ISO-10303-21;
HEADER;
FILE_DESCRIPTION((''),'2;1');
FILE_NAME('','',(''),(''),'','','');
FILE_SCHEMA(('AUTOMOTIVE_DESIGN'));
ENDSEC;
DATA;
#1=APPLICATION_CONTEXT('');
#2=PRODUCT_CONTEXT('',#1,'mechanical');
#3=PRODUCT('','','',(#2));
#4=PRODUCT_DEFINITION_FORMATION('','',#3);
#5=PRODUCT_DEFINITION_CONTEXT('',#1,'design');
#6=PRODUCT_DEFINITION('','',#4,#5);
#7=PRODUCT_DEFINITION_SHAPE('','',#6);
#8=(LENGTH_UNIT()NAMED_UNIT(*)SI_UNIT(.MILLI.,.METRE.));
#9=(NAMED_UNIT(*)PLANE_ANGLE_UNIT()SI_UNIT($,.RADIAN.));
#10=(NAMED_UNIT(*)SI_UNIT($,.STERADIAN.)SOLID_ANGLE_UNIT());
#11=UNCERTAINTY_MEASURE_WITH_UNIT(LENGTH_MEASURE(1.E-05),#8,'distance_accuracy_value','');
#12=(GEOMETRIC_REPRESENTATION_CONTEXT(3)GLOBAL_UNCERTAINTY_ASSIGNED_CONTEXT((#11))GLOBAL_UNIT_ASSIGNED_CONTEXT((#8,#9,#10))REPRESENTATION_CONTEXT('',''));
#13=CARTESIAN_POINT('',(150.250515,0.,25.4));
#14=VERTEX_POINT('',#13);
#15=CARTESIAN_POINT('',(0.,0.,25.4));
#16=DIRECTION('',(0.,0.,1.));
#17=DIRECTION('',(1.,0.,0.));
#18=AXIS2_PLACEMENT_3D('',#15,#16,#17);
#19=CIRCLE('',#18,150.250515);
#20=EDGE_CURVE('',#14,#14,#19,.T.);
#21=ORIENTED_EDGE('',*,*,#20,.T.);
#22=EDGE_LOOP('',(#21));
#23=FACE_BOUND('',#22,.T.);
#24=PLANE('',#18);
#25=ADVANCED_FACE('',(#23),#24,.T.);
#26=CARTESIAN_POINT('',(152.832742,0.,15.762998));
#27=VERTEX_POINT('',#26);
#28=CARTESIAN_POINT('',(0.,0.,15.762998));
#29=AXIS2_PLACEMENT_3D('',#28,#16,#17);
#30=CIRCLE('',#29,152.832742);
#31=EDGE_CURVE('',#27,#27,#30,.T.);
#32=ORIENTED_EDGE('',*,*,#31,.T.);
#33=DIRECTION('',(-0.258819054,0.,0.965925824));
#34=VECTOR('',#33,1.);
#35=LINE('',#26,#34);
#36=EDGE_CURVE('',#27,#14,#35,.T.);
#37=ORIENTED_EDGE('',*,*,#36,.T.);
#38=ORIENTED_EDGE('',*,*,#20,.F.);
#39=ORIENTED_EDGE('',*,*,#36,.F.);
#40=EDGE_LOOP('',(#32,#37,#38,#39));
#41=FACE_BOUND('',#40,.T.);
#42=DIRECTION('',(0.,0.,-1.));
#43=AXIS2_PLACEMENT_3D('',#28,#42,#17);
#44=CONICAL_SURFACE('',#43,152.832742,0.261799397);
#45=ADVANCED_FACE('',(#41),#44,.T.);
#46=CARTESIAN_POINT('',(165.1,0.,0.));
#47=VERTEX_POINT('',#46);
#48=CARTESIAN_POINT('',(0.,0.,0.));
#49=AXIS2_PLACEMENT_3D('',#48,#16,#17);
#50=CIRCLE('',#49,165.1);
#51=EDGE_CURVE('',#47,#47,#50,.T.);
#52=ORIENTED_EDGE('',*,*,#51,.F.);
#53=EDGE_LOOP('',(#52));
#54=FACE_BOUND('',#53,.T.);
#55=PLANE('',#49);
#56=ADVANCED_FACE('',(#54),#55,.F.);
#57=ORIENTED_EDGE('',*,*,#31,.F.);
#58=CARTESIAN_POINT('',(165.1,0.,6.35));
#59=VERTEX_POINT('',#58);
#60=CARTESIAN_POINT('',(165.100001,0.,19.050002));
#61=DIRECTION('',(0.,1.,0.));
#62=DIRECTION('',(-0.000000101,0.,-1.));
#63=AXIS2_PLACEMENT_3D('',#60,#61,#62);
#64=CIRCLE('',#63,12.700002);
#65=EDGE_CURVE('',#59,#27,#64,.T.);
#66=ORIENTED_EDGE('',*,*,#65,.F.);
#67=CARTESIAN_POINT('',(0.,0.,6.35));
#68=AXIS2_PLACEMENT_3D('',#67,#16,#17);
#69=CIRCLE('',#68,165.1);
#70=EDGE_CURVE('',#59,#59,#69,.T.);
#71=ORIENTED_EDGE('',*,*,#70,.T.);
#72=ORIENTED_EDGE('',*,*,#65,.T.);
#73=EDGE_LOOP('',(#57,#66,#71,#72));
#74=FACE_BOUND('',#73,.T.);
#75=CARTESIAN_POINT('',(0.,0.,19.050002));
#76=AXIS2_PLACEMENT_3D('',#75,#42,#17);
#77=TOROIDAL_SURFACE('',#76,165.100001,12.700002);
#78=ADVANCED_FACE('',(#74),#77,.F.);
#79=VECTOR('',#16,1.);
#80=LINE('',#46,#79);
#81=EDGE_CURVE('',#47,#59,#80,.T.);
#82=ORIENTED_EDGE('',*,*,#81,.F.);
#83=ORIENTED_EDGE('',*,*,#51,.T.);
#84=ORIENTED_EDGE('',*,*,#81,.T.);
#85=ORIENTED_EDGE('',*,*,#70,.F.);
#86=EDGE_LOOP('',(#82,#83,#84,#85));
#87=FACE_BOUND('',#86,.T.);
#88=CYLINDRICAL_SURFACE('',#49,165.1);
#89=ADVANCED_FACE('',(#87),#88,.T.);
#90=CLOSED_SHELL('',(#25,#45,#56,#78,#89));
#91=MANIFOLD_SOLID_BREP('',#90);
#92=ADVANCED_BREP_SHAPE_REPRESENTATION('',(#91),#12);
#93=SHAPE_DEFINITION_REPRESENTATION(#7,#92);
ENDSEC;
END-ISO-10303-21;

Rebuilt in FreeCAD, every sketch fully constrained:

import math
import FreeCAD as App
import Part
import Sketcher
Q = App.Units.Quantity

doc = App.newDocument("Part")
body = doc.addObject("PartDesign::Body", "Body")

sketch1 = body.newObject("Sketcher::SketchObject", "Sketch")
sketch1.AttachmentSupport = (doc.getObject("XZ_Plane"), [""])
sketch1.MapMode = "FlatFace"
sketch1.addGeometry([
    Part.LineSegment(App.Vector(0, 25, 0), App.Vector(0, 0, 0)),
    Part.LineSegment(App.Vector(0, 0, 0), App.Vector(165, 0, 0)),
    Part.LineSegment(App.Vector(165, 0, 0), App.Vector(165, 6, 0)),
    Part.ArcOfCircle(Part.Circle(App.Vector(165, 19, 0), App.Vector(0, 0, 1), 13), math.radians(-165), math.radians(-90)),
    Part.LineSegment(App.Vector(153, 16, 0), App.Vector(150, 25, 0)),
    Part.LineSegment(App.Vector(150, 25, 0), App.Vector(0, 25, 0)),
], False)
sketch1.addConstraint([
    Sketcher.Constraint("Coincident", 0, 2, 1, 1),
    Sketcher.Constraint("Coincident", 1, 2, 2, 1),
    Sketcher.Constraint("Coincident", 2, 2, 3, 2),
    Sketcher.Constraint("Tangent", 3, 1, 4, 1),
    Sketcher.Constraint("Coincident", 4, 2, 5, 1),
    Sketcher.Constraint("Coincident", 5, 2, 0, 1),
    Sketcher.Constraint("Vertical", 0),
    Sketcher.Constraint("Horizontal", 1),
    Sketcher.Constraint("Vertical", 2),
    Sketcher.Constraint("Horizontal", 5),
    Sketcher.Constraint("Coincident", 0, 2, -1, 1),
    Sketcher.Constraint("Vertical", 3, 3, 1, 2),
    Sketcher.Constraint("Radius", 3, Q("0.5000001 in")),
    Sketcher.Constraint("DistanceY", 0, 2, 0, 1, Q("1 in")),
    Sketcher.Constraint("DistanceX", 1, 1, 1, 2, Q("6.5 in")),
    Sketcher.Constraint("Angle", 4, Q("105.000001 deg")),
    Sketcher.Constraint("DistanceY", 2, 1, 2, 2, Q("0.25 in")),
])
revolution = body.newObject("PartDesign::Revolution", "Revolution")
revolution.Profile = sketch1
revolution.ReferenceAxis = (sketch1, ["V_Axis"])
revolution.Angle = 360

doc.recompute()
